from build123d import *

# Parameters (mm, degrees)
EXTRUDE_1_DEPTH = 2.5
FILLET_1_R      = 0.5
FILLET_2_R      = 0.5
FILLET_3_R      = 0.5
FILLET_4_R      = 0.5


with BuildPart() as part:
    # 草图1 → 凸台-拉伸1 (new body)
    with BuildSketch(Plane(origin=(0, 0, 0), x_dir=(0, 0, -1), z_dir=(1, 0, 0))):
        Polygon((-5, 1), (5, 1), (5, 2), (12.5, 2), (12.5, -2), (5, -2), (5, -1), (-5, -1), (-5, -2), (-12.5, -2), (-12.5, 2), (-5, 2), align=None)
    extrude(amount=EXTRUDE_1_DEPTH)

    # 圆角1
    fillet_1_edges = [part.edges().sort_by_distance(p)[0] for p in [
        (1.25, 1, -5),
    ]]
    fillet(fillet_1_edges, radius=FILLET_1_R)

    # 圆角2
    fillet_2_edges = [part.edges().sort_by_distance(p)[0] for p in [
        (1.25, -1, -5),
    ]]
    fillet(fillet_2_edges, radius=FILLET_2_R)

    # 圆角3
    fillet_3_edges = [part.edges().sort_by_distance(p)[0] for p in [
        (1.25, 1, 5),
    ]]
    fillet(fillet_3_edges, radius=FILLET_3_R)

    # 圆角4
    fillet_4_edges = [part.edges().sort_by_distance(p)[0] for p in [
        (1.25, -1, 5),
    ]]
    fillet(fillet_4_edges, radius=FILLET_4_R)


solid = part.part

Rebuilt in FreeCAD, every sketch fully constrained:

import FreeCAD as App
import Part
import Sketcher


def edges_at(feature, points):
    """Names of the edges that pass closest to the given points."""
    edges = feature.Shape.Edges
    near = lambda p: min(range(len(edges)), key=lambda i: edges[i].distToShape(Part.Vertex(*p))[0])
    return sorted({f"Edge{near(p) + 1}" for p in points})


def add_polygon(sketch, points):
    """Adds a closed chain of lines whose ends are joined by coincident constraints."""
    first, n = sketch.GeometryCount, len(points)
    for a, b in zip(points, points[1:] + points[:1]):
        sketch.addGeometry(Part.LineSegment(App.Vector(*a, 0), App.Vector(*b, 0)), False)
    for i in range(n):
        sketch.addConstraint(Sketcher.Constraint("Coincident", first + i, 2, first + (i + 1) % n, 1))

doc = App.newDocument("Part")
params = doc.addObject("Spreadsheet::Sheet", "Params")
for row, (alias, value) in enumerate([
    ("sketch1_width", "1 mm"),
    ("sketch1_width2", "4 mm"),
    ("sketch1_height", "10 mm"),
    ("sketch1_height2", "7.5 mm"),
    ("pad1_length", "2.5 mm"),
    ("fillet_radius", "0.5 mm"),
    ("fillet2_radius", "0.5 mm"),
    ("fillet3_radius", "0.5 mm"),
    ("fillet4_radius", "0.5 mm"),
], start=1):
    params.set(f"A{row}", alias)
    params.set(f"B{row}", "=" + value)
    params.setAlias(f"B{row}", alias)

body = doc.addObject("PartDesign::Body", "Body")

sketch1 = body.newObject("Sketcher::SketchObject", "Sketch")
sketch1.AttachmentSupport = (doc.getObject("YZ_Plane"), [""])
sketch1.MapMode = "FlatFace"
add_polygon(sketch1, [(1, -5), (1, 5), (2, 5), (2, 12.5), (-2, 12.5), (-2, 5), (-1, 5), (-1, -5), (-2, -5), (-2, -12.5), (2, -12.5), (2, -5)])
sketch1.addConstraint([
    Sketcher.Constraint("Vertical", 0),
    Sketcher.Constraint("Horizontal", 1),
    Sketcher.Constraint("Vertical", 2),
    Sketcher.Constraint("Horizontal", 3),
    Sketcher.Constraint("Vertical", 4),
    Sketcher.Constraint("Horizontal", 5),
    Sketcher.Constraint("Vertical", 6),
    Sketcher.Constraint("Horizontal", 7),
    Sketcher.Constraint("Vertical", 8),
    Sketcher.Constraint("Horizontal", 9),
    Sketcher.Constraint("Vertical", 10),
    Sketcher.Constraint("Horizontal", 11),
    Sketcher.Constraint("Symmetric", 0, 2, 6, 2, -1, 1),
    Sketcher.Constraint("Symmetric", 2, 2, 8, 2, -1, 1),
    Sketcher.Constraint("Symmetric", 4, 2, 10, 2, -1, 1),
    Sketcher.Constraint("Symmetric", 1, 2, 4, 2, -2),
    Sketcher.Constraint("DistanceX", 1, 1, 1, 2, 1.0),
    Sketcher.Constraint("DistanceX", 3, 2, 3, 1, 4.0),
    Sketcher.Constraint("DistanceY", 0, 1, 0, 2, 10.0),
    Sketcher.Constraint("DistanceY", 2, 1, 2, 2, 7.5),
])
sketch1.setExpression("Constraints[28]", "Params.sketch1_width")
sketch1.setExpression("Constraints[29]", "Params.sketch1_width2")
sketch1.setExpression("Constraints[30]", "Params.sketch1_height")
sketch1.setExpression("Constraints[31]", "Params.sketch1_height2")
pad1 = body.newObject("PartDesign::Pad", "Pad")
pad1.Profile = sketch1
pad1.setExpression("Length", "Params.pad1_length")
doc.recompute()

fillet = body.newObject("PartDesign::Fillet", "Fillet")
fillet.Base = (pad1, edges_at(pad1, [(1.25, 1, -5)]))
fillet.setExpression("Radius", "Params.fillet_radius")
doc.recompute()

fillet2 = body.newObject("PartDesign::Fillet", "Fillet001")
fillet2.Base = (fillet, edges_at(fillet, [(1.25, -1, -5)]))
fillet2.setExpression("Radius", "Params.fillet2_radius")
doc.recompute()

fillet3 = body.newObject("PartDesign::Fillet", "Fillet002")
fillet3.Base = (fillet2, edges_at(fillet2, [(1.25, 1, 5)]))
fillet3.setExpression("Radius", "Params.fillet3_radius")
doc.recompute()

fillet4 = body.newObject("PartDesign::Fillet", "Fillet003")
fillet4.Base = (fillet3, edges_at(fillet3, [(1.25, -1, 5)]))
fillet4.setExpression("Radius", "Params.fillet4_radius")

doc.recompute()
